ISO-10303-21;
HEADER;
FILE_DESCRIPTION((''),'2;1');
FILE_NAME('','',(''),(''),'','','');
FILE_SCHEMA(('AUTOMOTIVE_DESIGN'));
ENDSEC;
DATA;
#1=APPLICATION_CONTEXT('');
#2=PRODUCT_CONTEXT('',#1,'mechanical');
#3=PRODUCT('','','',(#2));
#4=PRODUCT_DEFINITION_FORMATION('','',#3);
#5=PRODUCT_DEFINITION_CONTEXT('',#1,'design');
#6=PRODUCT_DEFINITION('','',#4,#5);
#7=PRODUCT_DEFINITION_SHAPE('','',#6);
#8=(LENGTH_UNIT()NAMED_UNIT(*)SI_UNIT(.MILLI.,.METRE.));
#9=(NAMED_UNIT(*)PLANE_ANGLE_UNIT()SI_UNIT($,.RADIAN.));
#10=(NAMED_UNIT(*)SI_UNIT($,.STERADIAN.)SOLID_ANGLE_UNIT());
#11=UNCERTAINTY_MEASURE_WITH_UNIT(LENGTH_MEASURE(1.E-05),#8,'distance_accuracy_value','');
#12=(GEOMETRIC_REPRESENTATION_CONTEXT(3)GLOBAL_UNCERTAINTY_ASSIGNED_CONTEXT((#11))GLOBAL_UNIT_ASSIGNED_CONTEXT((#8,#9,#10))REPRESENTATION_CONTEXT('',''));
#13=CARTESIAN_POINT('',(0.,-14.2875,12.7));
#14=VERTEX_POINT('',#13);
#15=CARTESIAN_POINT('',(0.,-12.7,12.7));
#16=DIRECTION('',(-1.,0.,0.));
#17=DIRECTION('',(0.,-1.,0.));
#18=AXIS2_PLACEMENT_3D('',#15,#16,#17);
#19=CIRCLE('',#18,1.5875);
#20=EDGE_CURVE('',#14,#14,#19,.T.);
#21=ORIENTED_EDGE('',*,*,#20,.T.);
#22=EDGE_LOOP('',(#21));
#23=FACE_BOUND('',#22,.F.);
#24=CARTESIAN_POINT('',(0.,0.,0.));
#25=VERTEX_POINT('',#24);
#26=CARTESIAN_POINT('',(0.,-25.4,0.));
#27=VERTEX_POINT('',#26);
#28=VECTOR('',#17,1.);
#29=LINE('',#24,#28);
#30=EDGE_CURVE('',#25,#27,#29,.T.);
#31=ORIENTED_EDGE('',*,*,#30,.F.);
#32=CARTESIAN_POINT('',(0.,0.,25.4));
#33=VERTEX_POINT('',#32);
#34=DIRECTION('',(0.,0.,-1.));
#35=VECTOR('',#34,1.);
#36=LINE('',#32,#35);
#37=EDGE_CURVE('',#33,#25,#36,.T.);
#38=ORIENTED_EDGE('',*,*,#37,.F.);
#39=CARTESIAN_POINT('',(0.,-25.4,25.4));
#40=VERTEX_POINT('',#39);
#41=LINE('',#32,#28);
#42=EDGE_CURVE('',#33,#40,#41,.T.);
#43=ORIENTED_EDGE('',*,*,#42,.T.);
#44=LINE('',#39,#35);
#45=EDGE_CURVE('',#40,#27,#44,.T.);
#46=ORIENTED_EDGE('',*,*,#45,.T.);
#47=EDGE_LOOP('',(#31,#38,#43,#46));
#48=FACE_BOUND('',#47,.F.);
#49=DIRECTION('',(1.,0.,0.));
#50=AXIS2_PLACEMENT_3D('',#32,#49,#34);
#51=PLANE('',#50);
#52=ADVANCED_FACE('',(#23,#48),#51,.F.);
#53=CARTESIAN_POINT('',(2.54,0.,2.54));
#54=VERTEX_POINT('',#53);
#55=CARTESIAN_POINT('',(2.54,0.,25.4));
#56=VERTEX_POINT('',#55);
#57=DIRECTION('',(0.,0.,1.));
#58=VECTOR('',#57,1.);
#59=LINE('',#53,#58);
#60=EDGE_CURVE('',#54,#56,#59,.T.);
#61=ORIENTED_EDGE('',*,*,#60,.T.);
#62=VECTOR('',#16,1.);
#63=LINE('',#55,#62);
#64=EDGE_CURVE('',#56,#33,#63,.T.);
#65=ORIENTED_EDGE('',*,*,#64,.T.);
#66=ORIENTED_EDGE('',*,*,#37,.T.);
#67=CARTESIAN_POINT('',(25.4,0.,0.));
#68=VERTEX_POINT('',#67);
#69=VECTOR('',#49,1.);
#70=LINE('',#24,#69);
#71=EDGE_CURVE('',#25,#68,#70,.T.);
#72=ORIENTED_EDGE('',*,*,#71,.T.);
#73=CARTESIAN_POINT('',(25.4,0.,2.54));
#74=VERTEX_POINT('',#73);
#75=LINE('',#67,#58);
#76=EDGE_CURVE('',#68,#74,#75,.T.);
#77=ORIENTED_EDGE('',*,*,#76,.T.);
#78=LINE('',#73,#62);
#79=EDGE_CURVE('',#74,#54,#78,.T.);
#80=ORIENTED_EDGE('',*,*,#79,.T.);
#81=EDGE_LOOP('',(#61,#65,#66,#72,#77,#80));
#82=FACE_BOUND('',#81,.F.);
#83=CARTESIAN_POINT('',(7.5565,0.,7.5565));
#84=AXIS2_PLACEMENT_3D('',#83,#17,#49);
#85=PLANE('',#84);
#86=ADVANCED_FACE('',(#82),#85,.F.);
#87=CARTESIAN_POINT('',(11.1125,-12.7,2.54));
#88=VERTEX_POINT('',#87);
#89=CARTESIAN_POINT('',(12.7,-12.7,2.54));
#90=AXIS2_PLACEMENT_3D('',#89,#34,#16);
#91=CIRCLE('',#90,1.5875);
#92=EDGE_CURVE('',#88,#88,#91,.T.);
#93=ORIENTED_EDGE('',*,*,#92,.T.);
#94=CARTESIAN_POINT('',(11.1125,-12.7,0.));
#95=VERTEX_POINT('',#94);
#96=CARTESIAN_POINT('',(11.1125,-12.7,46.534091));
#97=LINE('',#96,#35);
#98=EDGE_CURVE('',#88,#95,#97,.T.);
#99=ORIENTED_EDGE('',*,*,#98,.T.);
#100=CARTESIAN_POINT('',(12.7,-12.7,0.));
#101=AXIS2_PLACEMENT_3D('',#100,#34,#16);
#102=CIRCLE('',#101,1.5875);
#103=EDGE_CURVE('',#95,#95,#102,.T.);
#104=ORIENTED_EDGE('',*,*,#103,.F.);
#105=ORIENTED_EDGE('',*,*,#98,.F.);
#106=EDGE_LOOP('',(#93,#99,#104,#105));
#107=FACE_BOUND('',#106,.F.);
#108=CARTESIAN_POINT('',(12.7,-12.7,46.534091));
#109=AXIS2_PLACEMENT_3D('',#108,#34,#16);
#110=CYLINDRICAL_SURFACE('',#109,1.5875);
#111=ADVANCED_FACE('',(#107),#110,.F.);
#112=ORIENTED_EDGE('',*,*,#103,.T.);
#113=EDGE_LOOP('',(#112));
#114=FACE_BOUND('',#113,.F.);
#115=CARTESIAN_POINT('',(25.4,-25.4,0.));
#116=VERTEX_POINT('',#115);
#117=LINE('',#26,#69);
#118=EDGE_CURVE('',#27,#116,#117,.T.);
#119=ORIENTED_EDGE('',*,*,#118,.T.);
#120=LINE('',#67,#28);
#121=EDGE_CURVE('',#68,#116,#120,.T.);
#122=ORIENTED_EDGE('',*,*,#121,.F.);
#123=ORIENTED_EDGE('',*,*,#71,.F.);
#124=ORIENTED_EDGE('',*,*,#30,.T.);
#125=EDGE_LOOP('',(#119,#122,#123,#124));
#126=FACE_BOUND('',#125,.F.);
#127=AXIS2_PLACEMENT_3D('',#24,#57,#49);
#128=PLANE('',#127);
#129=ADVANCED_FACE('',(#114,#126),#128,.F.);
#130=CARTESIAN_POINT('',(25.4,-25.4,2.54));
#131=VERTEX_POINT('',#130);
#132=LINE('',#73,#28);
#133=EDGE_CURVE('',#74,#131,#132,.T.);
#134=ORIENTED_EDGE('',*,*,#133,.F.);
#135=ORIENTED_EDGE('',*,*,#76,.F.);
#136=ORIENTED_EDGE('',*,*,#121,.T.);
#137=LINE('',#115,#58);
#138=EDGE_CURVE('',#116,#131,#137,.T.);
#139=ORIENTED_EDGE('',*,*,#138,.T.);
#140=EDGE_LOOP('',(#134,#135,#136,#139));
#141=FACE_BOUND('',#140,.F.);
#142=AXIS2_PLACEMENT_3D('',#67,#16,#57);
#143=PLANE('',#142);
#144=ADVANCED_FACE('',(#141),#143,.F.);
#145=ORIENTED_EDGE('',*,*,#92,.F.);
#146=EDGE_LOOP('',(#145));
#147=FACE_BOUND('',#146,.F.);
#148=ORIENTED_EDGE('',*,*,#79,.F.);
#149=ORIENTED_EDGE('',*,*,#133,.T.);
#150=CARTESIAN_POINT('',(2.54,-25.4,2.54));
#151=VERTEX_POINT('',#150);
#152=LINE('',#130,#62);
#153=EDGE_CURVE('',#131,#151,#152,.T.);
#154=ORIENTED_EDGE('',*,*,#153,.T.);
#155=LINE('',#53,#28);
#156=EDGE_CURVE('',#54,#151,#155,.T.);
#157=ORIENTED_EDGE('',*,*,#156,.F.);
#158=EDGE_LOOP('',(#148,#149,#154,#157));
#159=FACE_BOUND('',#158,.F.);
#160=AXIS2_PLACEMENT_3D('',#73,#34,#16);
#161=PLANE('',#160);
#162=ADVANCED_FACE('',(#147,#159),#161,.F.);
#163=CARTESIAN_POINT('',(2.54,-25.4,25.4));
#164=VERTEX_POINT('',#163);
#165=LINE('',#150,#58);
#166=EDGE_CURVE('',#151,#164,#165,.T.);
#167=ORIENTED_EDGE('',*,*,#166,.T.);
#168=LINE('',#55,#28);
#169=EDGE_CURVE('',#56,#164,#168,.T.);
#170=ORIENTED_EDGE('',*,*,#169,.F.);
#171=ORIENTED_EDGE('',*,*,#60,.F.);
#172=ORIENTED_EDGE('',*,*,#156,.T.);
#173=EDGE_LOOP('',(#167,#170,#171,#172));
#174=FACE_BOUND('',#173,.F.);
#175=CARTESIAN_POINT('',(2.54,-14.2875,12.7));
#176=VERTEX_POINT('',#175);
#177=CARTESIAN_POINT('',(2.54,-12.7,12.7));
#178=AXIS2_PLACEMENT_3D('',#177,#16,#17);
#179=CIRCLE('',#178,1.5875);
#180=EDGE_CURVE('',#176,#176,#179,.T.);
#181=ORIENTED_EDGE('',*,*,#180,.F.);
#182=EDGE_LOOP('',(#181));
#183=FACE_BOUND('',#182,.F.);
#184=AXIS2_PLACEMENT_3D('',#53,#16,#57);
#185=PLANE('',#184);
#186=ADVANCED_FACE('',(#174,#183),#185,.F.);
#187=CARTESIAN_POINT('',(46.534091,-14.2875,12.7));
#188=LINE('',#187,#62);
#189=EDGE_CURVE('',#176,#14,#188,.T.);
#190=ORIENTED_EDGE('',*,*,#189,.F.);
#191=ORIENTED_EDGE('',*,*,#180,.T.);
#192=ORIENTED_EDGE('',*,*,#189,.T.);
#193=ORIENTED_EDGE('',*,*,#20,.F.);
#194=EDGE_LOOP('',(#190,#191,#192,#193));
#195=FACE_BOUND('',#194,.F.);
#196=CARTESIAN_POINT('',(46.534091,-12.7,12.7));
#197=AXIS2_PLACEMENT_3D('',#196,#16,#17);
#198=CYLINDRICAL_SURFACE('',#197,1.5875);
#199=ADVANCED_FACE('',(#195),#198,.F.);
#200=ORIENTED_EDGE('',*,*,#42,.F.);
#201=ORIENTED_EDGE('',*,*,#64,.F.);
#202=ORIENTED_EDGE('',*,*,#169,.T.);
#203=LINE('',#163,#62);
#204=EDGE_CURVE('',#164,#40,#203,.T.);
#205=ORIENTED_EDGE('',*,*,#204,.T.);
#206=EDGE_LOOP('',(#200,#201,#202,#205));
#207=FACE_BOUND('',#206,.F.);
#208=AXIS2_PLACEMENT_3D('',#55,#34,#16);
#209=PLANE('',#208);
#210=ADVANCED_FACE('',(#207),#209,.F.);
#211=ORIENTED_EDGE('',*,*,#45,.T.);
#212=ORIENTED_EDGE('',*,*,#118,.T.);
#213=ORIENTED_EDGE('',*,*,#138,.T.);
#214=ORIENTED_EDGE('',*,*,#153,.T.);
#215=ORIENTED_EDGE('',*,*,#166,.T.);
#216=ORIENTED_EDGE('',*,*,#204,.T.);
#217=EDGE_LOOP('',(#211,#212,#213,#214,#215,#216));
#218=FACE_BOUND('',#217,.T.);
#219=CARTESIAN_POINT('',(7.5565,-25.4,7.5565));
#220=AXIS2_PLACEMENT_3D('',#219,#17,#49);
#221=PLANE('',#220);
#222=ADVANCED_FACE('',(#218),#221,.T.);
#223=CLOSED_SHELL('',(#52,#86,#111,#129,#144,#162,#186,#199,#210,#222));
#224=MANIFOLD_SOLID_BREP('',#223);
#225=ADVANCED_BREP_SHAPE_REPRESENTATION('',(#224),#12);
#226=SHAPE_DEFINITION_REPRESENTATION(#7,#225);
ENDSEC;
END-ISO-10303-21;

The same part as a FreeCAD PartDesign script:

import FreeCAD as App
import Part
import Sketcher
Q = App.Units.Quantity


def add_polygon(sketch, points):
    """Adds a closed chain of lines whose ends are joined by coincident constraints."""
    first, n = sketch.GeometryCount, len(points)
    for a, b in zip(points, points[1:] + points[:1]):
        sketch.addGeometry(Part.LineSegment(App.Vector(*a, 0), App.Vector(*b, 0)), False)
    for i in range(n):
        sketch.addConstraint(Sketcher.Constraint("Coincident", first + i, 2, first + (i + 1) % n, 1))

doc = App.newDocument("Part")
body = doc.addObject("PartDesign::Body", "Body")

# Sketch on XZ plane
sketch1 = body.newObject("Sketcher::SketchObject", "Sketch")
sketch1.AttachmentSupport = (doc.getObject("XZ_Plane"), [""])
sketch1.MapMode = "FlatFace"
add_polygon(sketch1, [(0, 25.4), (0, 0), (25.4, 0), (25.4, 2.5), (2.5, 2.5), (2.5, 25.4)])  # lines 0-5
sketch1.addConstraint([
    Sketcher.Constraint("Vertical", 0),
    Sketcher.Constraint("Horizontal", 1),
    Sketcher.Constraint("Vertical", 2),
    Sketcher.Constraint("Horizontal", 3),
    Sketcher.Constraint("Vertical", 4),
    Sketcher.Constraint("Horizontal", 5),
    Sketcher.Constraint("Coincident", 0, 2, -1, 1),
    Sketcher.Constraint("Equal", 1, 0),
    Sketcher.Constraint("Equal", 5, 2),
    Sketcher.Constraint("DistanceX", 1, 1, 1, 2, Q("1 in")),
    Sketcher.Constraint("DistanceX", 3, 2, 3, 1, Q("0.9 in")),
])
pad1 = body.newObject("PartDesign::Pad", "Pad")
pad1.Profile = sketch1
pad1.Length = Q("1 in")

# Sketch on YZ plane
sketch2 = body.newObject("Sketcher::SketchObject", "Sketch001")
sketch2.AttachmentSupport = (doc.getObject("YZ_Plane"), [""])
sketch2.MapMode = "FlatFace"
sketch2.AttachmentOffset = App.Placement(App.Vector(0, 0, 0.1 * 25.4), App.Rotation())
sketch2.addGeometry(Part.Circle(App.Vector(-12.7, 12.7, 0), App.Vector(0, 0, 1), 1.6), False)
sketch2.addConstraint([
    Sketcher.Constraint("Diameter", 0, Q("0.125 in")),
    Sketcher.Constraint("DistanceX", 0, 3, -1, 1, Q("0.5 in")),
    Sketcher.Constraint("DistanceY", -1, 1, 0, 3, Q("0.5 in")),
])
doc.recompute()
hole = body.newObject("PartDesign::Hole", "Hole")
hole.Profile = sketch2
hole.ThreadType = "None"
hole.Diameter = Q("0.125 in")
hole.DepthType = "ThroughAll"

# Sketch on XY plane
sketch3 = body.newObject("Sketcher::SketchObject", "Sketch002")
sketch3.AttachmentSupport = (doc.getObject("XY_Plane"), [""])
sketch3.MapMode = "FlatFace"
sketch3.AttachmentOffset = App.Placement(App.Vector(0, 0, 0.1 * 25.4), App.Rotation())
sketch3.addGeometry(Part.Circle(App.Vector(12.7, -12.7, 0), App.Vector(0, 0, 1), 1.6), False)
sketch3.addConstraint([
    Sketcher.Constraint("Diameter", 0, Q("0.125 in")),
    Sketcher.Constraint("DistanceX", -1, 1, 0, 3, Q("0.5 in")),
    Sketcher.Constraint("DistanceY", 0, 3, -1, 1, Q("0.5 in")),
])
doc.recompute()
hole2 = body.newObject("PartDesign::Hole", "Hole001")
hole2.Profile = sketch3
hole2.ThreadType = "None"
hole2.Diameter = Q("0.125 in")
hole2.DepthType = "ThroughAll"

doc.recompute()
